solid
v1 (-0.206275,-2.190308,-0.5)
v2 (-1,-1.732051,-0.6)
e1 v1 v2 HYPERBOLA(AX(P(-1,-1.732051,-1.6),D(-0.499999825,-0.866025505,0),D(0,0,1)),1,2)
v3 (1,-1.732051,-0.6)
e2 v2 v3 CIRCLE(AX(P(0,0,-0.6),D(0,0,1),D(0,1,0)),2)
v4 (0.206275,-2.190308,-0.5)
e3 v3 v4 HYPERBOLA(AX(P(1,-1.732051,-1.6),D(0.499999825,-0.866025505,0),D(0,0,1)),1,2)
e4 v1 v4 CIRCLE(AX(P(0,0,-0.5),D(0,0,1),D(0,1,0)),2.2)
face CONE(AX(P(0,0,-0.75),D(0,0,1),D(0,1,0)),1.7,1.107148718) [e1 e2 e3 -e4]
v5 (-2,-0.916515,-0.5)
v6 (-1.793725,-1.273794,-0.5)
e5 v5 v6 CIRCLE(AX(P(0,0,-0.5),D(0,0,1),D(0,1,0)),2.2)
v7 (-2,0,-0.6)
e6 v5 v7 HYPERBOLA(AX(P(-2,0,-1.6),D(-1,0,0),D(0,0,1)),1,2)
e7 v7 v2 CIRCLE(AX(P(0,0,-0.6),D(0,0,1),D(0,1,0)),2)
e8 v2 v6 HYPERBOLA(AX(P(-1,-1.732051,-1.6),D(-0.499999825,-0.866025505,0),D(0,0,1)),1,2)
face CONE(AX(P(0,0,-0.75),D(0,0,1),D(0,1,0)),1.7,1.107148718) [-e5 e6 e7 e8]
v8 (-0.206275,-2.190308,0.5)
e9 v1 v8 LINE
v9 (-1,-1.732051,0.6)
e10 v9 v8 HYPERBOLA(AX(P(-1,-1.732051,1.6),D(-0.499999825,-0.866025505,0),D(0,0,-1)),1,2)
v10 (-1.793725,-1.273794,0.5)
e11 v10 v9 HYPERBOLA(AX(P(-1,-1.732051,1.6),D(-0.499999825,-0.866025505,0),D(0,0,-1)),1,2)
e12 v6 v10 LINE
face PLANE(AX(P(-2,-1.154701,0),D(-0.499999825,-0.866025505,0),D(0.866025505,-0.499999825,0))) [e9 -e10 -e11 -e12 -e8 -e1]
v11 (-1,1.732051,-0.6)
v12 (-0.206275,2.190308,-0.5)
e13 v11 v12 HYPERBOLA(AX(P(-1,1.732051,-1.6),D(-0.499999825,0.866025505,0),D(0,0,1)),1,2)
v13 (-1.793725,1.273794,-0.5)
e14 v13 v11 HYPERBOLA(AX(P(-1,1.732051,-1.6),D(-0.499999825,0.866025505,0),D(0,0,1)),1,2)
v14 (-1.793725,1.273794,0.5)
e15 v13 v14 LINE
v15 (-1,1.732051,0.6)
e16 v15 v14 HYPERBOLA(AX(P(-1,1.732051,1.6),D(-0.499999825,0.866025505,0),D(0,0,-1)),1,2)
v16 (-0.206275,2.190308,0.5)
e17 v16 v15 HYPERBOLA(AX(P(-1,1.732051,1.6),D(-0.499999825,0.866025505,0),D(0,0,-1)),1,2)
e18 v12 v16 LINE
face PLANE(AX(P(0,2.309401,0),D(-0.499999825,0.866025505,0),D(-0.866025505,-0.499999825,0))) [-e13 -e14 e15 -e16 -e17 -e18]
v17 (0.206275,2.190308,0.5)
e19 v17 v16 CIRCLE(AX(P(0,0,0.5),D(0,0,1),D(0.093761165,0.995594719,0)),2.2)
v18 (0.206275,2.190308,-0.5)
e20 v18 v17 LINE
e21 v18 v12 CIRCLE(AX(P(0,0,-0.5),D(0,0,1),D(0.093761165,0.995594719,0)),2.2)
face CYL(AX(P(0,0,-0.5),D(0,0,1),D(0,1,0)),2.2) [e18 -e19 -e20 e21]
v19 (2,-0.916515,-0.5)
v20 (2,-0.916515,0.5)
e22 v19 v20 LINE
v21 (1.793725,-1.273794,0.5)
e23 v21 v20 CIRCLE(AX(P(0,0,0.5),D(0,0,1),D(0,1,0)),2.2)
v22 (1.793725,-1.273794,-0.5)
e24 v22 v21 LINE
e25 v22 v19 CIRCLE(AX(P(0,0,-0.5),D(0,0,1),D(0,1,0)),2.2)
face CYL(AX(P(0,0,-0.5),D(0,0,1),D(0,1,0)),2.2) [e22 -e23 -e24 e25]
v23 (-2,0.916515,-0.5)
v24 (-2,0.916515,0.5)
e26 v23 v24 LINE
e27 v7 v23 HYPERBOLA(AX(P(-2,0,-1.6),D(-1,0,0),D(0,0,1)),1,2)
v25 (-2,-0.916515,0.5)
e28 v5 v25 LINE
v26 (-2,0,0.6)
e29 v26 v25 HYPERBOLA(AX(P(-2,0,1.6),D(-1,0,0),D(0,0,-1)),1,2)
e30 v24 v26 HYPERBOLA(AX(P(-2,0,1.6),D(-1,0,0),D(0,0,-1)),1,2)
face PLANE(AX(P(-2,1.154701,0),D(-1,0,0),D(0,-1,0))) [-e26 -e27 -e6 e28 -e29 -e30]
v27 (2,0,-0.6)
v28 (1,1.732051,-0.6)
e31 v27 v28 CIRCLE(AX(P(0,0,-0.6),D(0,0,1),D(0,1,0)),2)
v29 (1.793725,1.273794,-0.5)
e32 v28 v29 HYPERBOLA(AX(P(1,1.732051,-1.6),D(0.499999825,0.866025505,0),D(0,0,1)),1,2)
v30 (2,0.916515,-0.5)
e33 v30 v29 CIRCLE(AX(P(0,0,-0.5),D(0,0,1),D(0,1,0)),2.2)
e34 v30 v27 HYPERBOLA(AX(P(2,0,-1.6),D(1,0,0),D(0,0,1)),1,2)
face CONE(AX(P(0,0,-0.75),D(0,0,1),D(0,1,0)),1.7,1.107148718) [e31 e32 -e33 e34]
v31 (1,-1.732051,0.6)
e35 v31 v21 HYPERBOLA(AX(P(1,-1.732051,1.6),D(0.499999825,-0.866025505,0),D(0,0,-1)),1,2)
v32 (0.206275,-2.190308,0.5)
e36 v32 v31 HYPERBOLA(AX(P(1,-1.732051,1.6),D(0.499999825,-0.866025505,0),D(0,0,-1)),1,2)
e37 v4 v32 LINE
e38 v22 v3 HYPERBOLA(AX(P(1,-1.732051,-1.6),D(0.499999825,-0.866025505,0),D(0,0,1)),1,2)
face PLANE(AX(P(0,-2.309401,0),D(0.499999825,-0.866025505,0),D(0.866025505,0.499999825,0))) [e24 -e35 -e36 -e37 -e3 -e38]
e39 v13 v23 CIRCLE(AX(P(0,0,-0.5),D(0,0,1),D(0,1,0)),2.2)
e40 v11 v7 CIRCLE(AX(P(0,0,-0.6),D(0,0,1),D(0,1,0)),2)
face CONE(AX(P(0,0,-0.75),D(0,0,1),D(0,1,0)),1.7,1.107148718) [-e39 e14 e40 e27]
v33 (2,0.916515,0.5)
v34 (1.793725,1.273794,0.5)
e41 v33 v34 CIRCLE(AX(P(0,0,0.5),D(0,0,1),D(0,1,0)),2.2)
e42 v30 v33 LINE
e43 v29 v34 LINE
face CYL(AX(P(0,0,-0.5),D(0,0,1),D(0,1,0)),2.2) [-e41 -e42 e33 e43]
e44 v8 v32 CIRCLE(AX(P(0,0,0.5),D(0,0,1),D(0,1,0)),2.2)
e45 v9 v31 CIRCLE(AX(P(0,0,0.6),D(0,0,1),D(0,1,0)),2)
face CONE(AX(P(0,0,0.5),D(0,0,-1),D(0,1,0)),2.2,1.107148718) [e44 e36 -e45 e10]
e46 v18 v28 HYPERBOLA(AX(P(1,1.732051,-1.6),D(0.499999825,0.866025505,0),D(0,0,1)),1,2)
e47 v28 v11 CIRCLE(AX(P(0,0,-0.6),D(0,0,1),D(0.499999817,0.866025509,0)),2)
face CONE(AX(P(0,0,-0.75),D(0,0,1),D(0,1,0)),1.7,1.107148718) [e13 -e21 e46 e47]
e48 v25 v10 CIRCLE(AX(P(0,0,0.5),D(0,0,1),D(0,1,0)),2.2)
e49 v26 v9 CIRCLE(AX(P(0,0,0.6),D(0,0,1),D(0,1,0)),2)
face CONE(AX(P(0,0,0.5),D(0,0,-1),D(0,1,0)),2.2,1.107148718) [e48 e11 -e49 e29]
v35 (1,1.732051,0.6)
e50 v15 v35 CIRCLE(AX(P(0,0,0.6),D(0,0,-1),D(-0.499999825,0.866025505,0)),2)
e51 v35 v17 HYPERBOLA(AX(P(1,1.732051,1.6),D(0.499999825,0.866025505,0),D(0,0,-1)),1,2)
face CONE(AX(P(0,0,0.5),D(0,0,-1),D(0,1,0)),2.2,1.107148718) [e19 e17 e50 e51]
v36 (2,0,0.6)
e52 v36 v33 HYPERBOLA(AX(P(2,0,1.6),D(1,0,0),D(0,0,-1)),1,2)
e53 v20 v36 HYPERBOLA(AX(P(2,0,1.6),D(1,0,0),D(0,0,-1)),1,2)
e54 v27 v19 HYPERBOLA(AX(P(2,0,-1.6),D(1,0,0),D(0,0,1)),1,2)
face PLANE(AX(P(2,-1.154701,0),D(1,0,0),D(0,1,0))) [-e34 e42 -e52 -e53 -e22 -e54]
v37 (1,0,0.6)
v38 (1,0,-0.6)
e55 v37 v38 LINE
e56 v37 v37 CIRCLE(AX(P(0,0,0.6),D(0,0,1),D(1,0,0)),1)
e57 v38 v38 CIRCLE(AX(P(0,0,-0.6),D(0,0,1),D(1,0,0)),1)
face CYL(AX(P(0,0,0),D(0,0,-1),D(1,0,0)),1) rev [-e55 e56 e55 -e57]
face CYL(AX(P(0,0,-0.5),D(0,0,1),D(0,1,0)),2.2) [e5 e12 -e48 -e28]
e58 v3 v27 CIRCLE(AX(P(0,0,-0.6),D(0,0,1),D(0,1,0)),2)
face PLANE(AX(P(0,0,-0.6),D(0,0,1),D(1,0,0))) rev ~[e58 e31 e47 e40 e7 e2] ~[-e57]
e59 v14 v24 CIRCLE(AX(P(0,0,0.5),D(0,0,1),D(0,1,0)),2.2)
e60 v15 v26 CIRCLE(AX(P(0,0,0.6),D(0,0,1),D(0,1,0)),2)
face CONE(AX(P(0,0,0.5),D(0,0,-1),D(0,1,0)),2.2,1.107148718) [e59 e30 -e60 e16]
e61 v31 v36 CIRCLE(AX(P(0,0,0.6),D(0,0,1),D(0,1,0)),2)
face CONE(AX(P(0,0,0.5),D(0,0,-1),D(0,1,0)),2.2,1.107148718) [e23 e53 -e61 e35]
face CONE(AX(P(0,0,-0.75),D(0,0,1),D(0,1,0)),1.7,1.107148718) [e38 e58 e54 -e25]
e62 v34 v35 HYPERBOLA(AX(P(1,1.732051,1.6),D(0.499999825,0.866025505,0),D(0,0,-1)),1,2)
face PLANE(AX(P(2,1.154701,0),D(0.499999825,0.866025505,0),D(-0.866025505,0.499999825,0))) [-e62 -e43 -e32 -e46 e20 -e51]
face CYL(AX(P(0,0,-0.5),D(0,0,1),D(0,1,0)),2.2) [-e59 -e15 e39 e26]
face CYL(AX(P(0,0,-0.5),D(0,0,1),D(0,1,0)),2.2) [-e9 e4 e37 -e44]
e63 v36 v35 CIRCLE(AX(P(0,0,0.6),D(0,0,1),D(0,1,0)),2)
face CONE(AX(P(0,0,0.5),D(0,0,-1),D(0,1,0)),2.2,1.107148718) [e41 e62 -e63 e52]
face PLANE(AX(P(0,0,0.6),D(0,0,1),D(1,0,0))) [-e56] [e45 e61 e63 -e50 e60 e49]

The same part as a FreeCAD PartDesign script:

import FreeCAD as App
import Part
import Sketcher
Q = App.Units.Quantity

doc = App.newDocument("Part")
body = doc.addObject("PartDesign::Body", "Body")

# Sketch on YZ plane
sketch1 = doc.addObject("Sketcher::SketchObject", "Sketch")
body.addObject(sketch1)
sketch1.AttachmentSupport = (doc.YZ_Plane, [""])
sketch1.MapMode = "FlatFace"
sketch1.addGeometry(Part.LineSegment(App.Vector(1.7, 0.75, 0), App.Vector(2.2, 0.5, 0)), False)
sketch1.addGeometry(Part.LineSegment(App.Vector(2.2, 0.5, 0), App.Vector(2.2, -0.5, 0)), False)
sketch1.addGeometry(Part.LineSegment(App.Vector(2.2, -0.5, 0), App.Vector(1.7, -0.75, 0)), False)
sketch1.addGeometry(Part.LineSegment(App.Vector(1.7, -0.75, 0), App.Vector(2.5, -0.75, 0)), False)
sketch1.addGeometry(Part.LineSegment(App.Vector(2.5, -0.75, 0), App.Vector(2.5, 0.75, 0)), False)
sketch1.addGeometry(Part.LineSegment(App.Vector(2.5, 0.75, 0), App.Vector(1.7, 0.75, 0)), False)
sketch1.addConstraint(Sketcher.Constraint("Coincident", 0, 2, 1, 1))
sketch1.addConstraint(Sketcher.Constraint("Coincident", 1, 2, 2, 1))
sketch1.addConstraint(Sketcher.Constraint("Coincident", 2, 2, 3, 1))
sketch1.addConstraint(Sketcher.Constraint("Coincident", 3, 2, 4, 1))
sketch1.addConstraint(Sketcher.Constraint("Coincident", 4, 2, 5, 1))
sketch1.addConstraint(Sketcher.Constraint("Coincident", 5, 2, 0, 1))
sketch1.addConstraint(Sketcher.Constraint("Vertical", 1))
sketch1.addConstraint(Sketcher.Constraint("Horizontal", 3))
sketch1.addConstraint(Sketcher.Constraint("Vertical", 4))
sketch1.addConstraint(Sketcher.Constraint("Horizontal", 5))
sketch1.addConstraint(Sketcher.Constraint("Symmetric", 2, 2, 5, 2, -1))
sketch1.addConstraint(Sketcher.Constraint("Equal", 0, 2))
sketch1.addConstraint(Sketcher.Constraint("DistanceY", 1, 2, 1, 1, Q("1 mm")))
sketch1.addConstraint(Sketcher.Constraint("DistanceX", 3, 1, 3, 2, Q("0.8 mm")))
sketch1.addConstraint(Sketcher.Constraint("DistanceY", 4, 1, 4, 2, Q("1.5 mm")))
sketch1.addConstraint(Sketcher.Constraint("DistanceX", -1, 1, 0, 2, Q("2.2 mm")))
sketch1.addConstraint(Sketcher.Constraint("DistanceX", -1, 1, 2, 2, Q("1.7 mm")))
revolution = doc.addObject("PartDesign::Revolution", "Revolution")
body.addObject(revolution)
revolution.Profile = sketch1
revolution.ReferenceAxis = (sketch1, ["V_Axis"])
revolution.Angle = 360
body2 = doc.addObject("PartDesign::Body", "Body001")

# Sketch on XY plane
sketch2 = doc.addObject("Sketcher::SketchObject", "Sketch001")
body2.addObject(sketch2)
sketch2.AttachmentSupport = (doc.getObject("XY_Plane001"), [""])
sketch2.MapMode = "FlatFace"
sketch2.addGeometry(Part.LineSegment(App.Vector(2, 1.154701, 0), App.Vector(0, 2.309401, 0)), False)
sketch2.addGeometry(Part.LineSegment(App.Vector(0, 2.309401, 0), App.Vector(-2, 1.154701, 0)), False)
sketch2.addGeometry(Part.LineSegment(App.Vector(-2, 1.154701, 0), App.Vector(-2, -1.154701, 0)), False)
sketch2.addGeometry(Part.LineSegment(App.Vector(-2, -1.154701, 0), App.Vector(0, -2.309401, 0)), False)
sketch2.addGeometry(Part.LineSegment(App.Vector(0, -2.309401, 0), App.Vector(2, -1.154701, 0)), False)
sketch2.addGeometry(Part.LineSegment(App.Vector(2, -1.154701, 0), App.Vector(2, 1.154701, 0)), False)
sketch2.addGeometry(Part.Circle(App.Vector(0, 0, 0), App.Vector(0, 0, 1), 1), False)
sketch2.addConstraint(Sketcher.Constraint("Coincident", 0, 2, 1, 1))
sketch2.addConstraint(Sketcher.Constraint("Coincident", 1, 2, 2, 1))
sketch2.addConstraint(Sketcher.Constraint("Coincident", 2, 2, 3, 1))
sketch2.addConstraint(Sketcher.Constraint("Coincident", 3, 2, 4, 1))
sketch2.addConstraint(Sketcher.Constraint("Coincident", 4, 2, 5, 1))
sketch2.addConstraint(Sketcher.Constraint("Coincident", 5, 2, 0, 1))
sketch2.addConstraint(Sketcher.Constraint("Vertical", 2))
sketch2.addConstraint(Sketcher.Constraint("Vertical", 5))
sketch2.addConstraint(Sketcher.Constraint("Coincident", 6, 3, -1, 1))
sketch2.addConstraint(Sketcher.Constraint("Symmetric", 0, 2, 3, 2, -1, 1))
sketch2.addConstraint(Sketcher.Constraint("Symmetric", 1, 2, 4, 2, -1, 1))
sketch2.addConstraint(Sketcher.Constraint("PointOnObject", 0, 2, -2))
sketch2.addConstraint(Sketcher.Constraint("Parallel", 0, 3))
sketch2.addConstraint(Sketcher.Constraint("Horizontal", 2, 2, 4, 2))
sketch2.addConstraint(Sketcher.Constraint("Diameter", 6, Q("2 mm")))
sketch2.addConstraint(Sketcher.Constraint("Angle", 0, Q("150.000012 deg")))
sketch2.addConstraint(Sketcher.Constraint("DistanceX", 1, 2, -1, 1, Q("2 mm")))
sketch2.addConstraint(Sketcher.Constraint("DistanceY", 2, 2, 2, 1, Q("2.309402 mm")))
pad1 = doc.addObject("PartDesign::Pad", "Pad")
body2.addObject(pad1)
pad1.Profile = sketch2
pad1.Length = 1.2
pad1.Midplane = True
doc.recompute()

boolean = doc.addObject("PartDesign::Boolean", "Boolean")
body2.addObject(boolean)
boolean.Type = "Cut"
boolean.addObjects([body])

doc.recompute()
